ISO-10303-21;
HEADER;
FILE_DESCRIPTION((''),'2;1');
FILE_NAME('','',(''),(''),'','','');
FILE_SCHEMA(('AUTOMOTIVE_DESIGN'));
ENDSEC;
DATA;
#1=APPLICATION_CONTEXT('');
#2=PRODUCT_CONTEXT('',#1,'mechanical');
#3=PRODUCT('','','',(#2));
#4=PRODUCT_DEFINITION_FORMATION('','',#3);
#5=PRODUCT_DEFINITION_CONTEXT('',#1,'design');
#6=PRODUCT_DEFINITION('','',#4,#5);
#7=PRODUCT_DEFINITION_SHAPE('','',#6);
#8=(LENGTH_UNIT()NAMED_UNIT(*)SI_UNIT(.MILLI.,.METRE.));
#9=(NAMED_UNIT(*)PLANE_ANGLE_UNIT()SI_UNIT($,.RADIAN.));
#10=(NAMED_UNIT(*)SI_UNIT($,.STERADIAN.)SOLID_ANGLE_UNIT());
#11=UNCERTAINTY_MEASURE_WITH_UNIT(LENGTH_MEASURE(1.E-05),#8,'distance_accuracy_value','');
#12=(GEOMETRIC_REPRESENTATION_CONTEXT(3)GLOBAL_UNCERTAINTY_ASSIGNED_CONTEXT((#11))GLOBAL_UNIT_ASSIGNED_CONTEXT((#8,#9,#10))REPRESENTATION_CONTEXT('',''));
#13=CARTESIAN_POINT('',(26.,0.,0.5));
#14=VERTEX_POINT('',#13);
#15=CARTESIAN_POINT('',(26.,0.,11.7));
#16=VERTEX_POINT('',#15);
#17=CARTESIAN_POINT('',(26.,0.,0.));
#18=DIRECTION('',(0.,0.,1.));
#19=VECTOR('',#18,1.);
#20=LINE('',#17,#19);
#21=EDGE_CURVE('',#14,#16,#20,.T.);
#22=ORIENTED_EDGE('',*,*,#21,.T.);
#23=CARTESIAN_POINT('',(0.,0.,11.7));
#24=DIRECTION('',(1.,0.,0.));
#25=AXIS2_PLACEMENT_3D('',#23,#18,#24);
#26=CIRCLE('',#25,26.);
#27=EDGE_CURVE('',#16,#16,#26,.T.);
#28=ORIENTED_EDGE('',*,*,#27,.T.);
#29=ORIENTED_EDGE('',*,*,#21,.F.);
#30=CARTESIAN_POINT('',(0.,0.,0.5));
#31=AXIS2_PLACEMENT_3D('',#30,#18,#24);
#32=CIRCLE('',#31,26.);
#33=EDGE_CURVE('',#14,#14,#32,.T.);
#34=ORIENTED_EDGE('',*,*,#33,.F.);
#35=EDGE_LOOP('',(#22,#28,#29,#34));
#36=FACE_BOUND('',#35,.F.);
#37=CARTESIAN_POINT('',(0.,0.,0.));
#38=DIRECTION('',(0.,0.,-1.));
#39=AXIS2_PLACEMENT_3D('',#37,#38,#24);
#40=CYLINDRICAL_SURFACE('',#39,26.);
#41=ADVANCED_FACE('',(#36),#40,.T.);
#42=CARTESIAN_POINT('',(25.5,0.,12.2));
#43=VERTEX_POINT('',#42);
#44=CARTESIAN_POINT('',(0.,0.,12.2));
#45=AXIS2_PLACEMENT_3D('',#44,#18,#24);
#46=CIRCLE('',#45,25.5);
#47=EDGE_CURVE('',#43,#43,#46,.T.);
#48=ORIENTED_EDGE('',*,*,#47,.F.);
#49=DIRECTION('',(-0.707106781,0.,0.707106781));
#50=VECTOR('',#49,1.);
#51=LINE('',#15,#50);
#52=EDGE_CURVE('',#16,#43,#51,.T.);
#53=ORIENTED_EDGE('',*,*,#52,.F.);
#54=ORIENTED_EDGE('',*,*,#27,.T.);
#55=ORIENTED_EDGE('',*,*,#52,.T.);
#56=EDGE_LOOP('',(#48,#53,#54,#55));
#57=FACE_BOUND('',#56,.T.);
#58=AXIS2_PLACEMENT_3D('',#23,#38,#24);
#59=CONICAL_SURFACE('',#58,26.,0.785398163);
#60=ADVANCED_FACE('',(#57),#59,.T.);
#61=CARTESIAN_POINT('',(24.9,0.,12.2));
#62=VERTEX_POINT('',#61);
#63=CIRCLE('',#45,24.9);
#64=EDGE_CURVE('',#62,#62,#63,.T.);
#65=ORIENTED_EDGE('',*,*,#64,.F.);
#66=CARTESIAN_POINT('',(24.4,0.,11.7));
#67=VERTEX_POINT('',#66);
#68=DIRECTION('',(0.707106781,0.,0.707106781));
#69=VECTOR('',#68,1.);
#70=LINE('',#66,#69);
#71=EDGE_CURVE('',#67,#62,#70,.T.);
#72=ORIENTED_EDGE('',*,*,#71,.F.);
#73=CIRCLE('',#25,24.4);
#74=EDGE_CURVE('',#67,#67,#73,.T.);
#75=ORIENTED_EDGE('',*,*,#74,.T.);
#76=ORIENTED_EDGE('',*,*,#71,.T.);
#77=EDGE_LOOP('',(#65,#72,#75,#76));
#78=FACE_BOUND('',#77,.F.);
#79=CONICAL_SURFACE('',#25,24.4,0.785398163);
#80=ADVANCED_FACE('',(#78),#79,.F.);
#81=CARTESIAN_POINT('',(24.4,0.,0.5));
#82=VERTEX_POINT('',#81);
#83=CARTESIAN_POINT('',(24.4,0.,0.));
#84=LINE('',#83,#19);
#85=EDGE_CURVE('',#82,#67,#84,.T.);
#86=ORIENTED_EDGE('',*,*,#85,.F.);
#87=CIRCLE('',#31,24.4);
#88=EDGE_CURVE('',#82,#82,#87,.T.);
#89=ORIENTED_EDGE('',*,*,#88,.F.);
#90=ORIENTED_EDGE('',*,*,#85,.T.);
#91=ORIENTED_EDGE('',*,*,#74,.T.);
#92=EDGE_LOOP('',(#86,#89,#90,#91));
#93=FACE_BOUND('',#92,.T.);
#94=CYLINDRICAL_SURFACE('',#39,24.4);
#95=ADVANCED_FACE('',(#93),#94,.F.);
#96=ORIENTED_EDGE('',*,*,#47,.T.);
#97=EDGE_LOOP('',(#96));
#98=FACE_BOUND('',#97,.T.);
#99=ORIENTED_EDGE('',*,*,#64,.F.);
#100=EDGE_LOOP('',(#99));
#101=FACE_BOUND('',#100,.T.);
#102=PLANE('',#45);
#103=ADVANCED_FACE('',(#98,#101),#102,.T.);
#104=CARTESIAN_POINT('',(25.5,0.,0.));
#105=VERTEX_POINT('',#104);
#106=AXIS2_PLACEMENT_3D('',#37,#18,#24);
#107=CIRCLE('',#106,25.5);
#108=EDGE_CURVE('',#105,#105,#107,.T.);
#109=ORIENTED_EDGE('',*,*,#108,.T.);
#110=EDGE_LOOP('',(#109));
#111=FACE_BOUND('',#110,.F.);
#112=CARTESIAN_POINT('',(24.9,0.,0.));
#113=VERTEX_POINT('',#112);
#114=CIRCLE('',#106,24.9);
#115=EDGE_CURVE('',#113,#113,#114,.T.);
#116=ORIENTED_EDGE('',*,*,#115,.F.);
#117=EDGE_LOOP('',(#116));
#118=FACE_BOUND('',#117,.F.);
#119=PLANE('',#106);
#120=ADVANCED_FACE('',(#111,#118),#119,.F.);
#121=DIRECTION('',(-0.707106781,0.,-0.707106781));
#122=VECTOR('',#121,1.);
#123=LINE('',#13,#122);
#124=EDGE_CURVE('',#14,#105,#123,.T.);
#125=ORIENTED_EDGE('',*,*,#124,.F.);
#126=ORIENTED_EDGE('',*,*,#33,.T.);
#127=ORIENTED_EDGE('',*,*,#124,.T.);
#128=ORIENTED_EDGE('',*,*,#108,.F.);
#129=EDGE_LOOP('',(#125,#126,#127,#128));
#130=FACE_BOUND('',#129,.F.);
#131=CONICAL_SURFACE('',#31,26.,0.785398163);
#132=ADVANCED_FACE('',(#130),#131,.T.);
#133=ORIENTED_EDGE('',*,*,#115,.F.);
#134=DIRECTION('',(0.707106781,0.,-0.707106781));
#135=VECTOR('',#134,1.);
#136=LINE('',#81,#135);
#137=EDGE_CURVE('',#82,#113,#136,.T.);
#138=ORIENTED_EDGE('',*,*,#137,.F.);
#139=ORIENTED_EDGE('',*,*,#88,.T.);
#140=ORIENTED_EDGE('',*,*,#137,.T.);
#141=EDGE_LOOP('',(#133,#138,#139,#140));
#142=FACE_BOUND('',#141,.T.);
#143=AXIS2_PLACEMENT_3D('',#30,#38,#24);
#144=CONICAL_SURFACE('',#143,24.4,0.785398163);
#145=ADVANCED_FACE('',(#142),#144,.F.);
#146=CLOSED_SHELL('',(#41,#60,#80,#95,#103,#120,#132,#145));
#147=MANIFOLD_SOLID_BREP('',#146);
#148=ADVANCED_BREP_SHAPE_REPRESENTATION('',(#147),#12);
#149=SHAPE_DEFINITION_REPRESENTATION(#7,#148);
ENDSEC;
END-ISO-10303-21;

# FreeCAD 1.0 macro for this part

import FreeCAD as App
import Part
import Sketcher
from FreeCAD import Vector
Q = App.Units.Quantity


def edges_at(feature, points):
    """Names of the edges that pass closest to the given points."""
    edges = feature.Shape.Edges
    near = lambda p: min(range(len(edges)), key=lambda i: edges[i].distToShape(Part.Vertex(*p))[0])
    return sorted({f"Edge{near(p) + 1}" for p in points})

doc = App.newDocument("Part")
body = doc.addObject("PartDesign::Body", "Body")

sketch1 = doc.addObject("Sketcher::SketchObject", "Sketch")
body.addObject(sketch1)
sketch1.AttachmentSupport = (doc.XY_Plane, [""])
sketch1.MapMode = "FlatFace"
sketch1.addGeometry([
    Part.Circle(Vector(0, 0, 0), Vector(0, 0, 1), 26),
    Part.Circle(Vector(0, 0, 0), Vector(0, 0, 1), 24.4),
], False)
sketch1.addConstraint([
    Sketcher.Constraint("Coincident", 0, 3, -1, 1),
    Sketcher.Constraint("Coincident", 1, 3, -1, 1),
    Sketcher.Constraint("Diameter", 0, Q("52 mm")),
    Sketcher.Constraint("Diameter", 1, Q("48.8 mm")),
])
pad1 = doc.addObject("PartDesign::Pad", "Pad")
body.addObject(pad1)
pad1.Profile = sketch1
pad1.Length = 12.2
doc.recompute()

chamfer = doc.addObject("PartDesign::Chamfer", "Chamfer")
body.addObject(chamfer)
chamfer.Base = (pad1, edges_at(pad1, [
    (-24.4, 0, 12.2),
    (-24.4, 0, 0),
    (-26, 0, 12.2),
    (-26, 0, 0),
]))
chamfer.Size = 0.5

doc.recompute()
